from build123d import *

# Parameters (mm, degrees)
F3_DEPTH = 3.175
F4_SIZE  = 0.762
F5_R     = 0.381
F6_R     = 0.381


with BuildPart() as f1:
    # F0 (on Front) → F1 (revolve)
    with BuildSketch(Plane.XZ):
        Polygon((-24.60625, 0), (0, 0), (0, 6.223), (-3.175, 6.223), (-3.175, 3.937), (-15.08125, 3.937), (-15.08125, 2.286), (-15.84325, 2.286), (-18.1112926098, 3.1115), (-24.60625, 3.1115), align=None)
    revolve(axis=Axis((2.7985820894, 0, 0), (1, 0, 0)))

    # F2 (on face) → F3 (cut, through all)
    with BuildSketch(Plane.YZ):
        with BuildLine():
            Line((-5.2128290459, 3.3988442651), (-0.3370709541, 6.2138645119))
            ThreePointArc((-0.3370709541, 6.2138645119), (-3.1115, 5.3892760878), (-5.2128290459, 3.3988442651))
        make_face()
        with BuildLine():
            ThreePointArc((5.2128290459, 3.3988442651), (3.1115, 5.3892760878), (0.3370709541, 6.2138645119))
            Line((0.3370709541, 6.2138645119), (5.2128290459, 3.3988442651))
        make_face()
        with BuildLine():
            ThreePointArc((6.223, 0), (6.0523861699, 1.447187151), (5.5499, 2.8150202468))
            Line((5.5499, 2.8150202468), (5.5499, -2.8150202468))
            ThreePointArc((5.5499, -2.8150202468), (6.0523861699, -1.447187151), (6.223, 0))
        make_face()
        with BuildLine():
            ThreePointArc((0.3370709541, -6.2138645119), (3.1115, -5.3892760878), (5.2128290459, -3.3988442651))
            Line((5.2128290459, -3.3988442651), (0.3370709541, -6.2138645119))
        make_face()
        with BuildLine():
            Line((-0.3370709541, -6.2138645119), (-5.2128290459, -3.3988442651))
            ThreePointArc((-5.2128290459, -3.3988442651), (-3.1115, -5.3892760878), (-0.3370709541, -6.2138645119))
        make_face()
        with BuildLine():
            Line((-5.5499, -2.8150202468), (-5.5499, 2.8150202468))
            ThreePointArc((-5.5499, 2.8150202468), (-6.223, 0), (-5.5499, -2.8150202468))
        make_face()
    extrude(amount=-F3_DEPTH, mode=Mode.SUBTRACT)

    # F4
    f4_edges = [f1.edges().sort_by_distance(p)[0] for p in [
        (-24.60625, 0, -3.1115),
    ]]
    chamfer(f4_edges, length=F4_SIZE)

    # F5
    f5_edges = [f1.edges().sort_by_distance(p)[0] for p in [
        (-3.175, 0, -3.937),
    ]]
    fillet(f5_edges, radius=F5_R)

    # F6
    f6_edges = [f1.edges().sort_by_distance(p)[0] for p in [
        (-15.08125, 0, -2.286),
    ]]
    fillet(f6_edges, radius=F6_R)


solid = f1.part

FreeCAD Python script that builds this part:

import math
import FreeCAD as App
import Part
import Sketcher
Q = App.Units.Quantity


def edges_at(feature, points):
    """Names of the edges that pass closest to the given points."""
    edges = feature.Shape.Edges
    near = lambda p: min(range(len(edges)), key=lambda i: edges[i].distToShape(Part.Vertex(*p))[0])
    return sorted({f"Edge{near(p) + 1}" for p in points})


def add_polygon(sketch, points):
    """Adds a closed chain of lines whose ends are joined by coincident constraints."""
    first, n = sketch.GeometryCount, len(points)
    for a, b in zip(points, points[1:] + points[:1]):
        sketch.addGeometry(Part.LineSegment(App.Vector(*a, 0), App.Vector(*b, 0)), False)
    for i in range(n):
        sketch.addConstraint(Sketcher.Constraint("Coincident", first + i, 2, first + (i + 1) % n, 1))

doc = App.newDocument("Part")
body = doc.addObject("PartDesign::Body", "Body")

# Sketch on XZ plane
sketch1 = body.newObject("Sketcher::SketchObject", "Sketch")
sketch1.AttachmentSupport = (doc.getObject("XZ_Plane"), [""])
sketch1.MapMode = "FlatFace"
add_polygon(sketch1, [(-24.6, 0), (0, 0), (0, 6.2), (-3.2, 6.2), (-3.2, 3.9), (-15.1, 3.9), (-15.1, 2.3), (-15.8, 2.3), (-18.1, 3.1), (-24.6, 3.1)])  # lines 0-9
sketch1.addConstraint(Sketcher.Constraint("Horizontal", 0))
sketch1.addConstraint(Sketcher.Constraint("Vertical", 1))
sketch1.addConstraint(Sketcher.Constraint("Horizontal", 2))
sketch1.addConstraint(Sketcher.Constraint("Vertical", 3))
sketch1.addConstraint(Sketcher.Constraint("Horizontal", 4))
sketch1.addConstraint(Sketcher.Constraint("Vertical", 5))
sketch1.addConstraint(Sketcher.Constraint("Horizontal", 6))
sketch1.addConstraint(Sketcher.Constraint("Horizontal", 8))
sketch1.addConstraint(Sketcher.Constraint("Vertical", 9))
sketch1.addConstraint(Sketcher.Constraint("Coincident", 0, 2, -1, 1))
sketch1.addConstraint(Sketcher.Constraint("Angle", 7, Q("160 deg")))
sketch1.addConstraint(Sketcher.Constraint("DistanceX", 6, 2, 6, 1, Q("0.03 in")))
sketch1.addConstraint(Sketcher.Constraint("DistanceY", 3, 2, 3, 1, Q("0.09 in")))
sketch1.addConstraint(Sketcher.Constraint("DistanceX", 0, 1, 0, 2, Q("0.96875 in")))
sketch1.addConstraint(Sketcher.Constraint("DistanceX", 2, 2, 2, 1, Q("0.125 in")))
sketch1.addConstraint(Sketcher.Constraint("DistanceX", 4, 2, 4, 1, Q("0.46875 in")))
sketch1.addConstraint(Sketcher.Constraint("DistanceY", 1, 1, 1, 2, Q("0.245 in")))
sketch1.addConstraint(Sketcher.Constraint("DistanceY", 5, 2, 5, 1, Q("0.065 in")))
sketch1.addConstraint(Sketcher.Constraint("DistanceY", 9, 2, 9, 1, Q("0.1225 in")))
revolution = body.newObject("PartDesign::Revolution", "Revolution")
revolution.Profile = sketch1
revolution.ReferenceAxis = (sketch1, ["H_Axis"])
revolution.Angle = 360

# Sketch on YZ plane
sketch2 = body.newObject("Sketcher::SketchObject", "Sketch001")
sketch2.AttachmentSupport = (doc.getObject("YZ_Plane"), [""])
sketch2.MapMode = "FlatFace"
sketch2.addGeometry(Part.LineSegment(App.Vector(-5.2, 3.4, 0), App.Vector(-0.3, 6.2, 0)), False)
sketch2.addGeometry(Part.ArcOfCircle(Part.Circle(App.Vector(0, 0, 0), App.Vector(0, 0, 1), 6.2), math.radians(93), math.radians(147)), False)
sketch2.addGeometry(Part.ArcOfCircle(Part.Circle(App.Vector(0, 0, 0), App.Vector(0, 0, 1), 6.2), math.radians(33), math.radians(87)), False)
sketch2.addGeometry(Part.LineSegment(App.Vector(0.3, 6.2, 0), App.Vector(5.2, 3.4, 0)), False)
sketch2.addGeometry(Part.ArcOfCircle(Part.Circle(App.Vector(0, 0, 0), App.Vector(0, 0, 1), 6.2), math.radians(0), math.radians(27)), False)
sketch2.addGeometry(Part.LineSegment(App.Vector(5.5, 2.8, 0), App.Vector(5.5, -2.8, 0)), False)
sketch2.addGeometry(Part.ArcOfCircle(Part.Circle(App.Vector(0, 0, 0), App.Vector(0, 0, 1), 6.2), math.radians(-27), math.radians(0)), False)
sketch2.addGeometry(Part.ArcOfCircle(Part.Circle(App.Vector(0, 0, 0), App.Vector(0, 0, 1), 6.2), math.radians(-87), math.radians(-33)), False)
sketch2.addGeometry(Part.LineSegment(App.Vector(5.2, -3.4, 0), App.Vector(0.3, -6.2, 0)), False)
sketch2.addGeometry(Part.LineSegment(App.Vector(-0.3, -6.2, 0), App.Vector(-5.2, -3.4, 0)), False)
sketch2.addGeometry(Part.ArcOfCircle(Part.Circle(App.Vector(0, 0, 0), App.Vector(0, 0, 1), 6.2), math.radians(-147), math.radians(-93)), False)
sketch2.addGeometry(Part.LineSegment(App.Vector(-5.5, -2.8, 0), App.Vector(-5.5, 2.8, 0)), False)
sketch2.addGeometry(Part.ArcOfCircle(Part.Circle(App.Vector(0, 0, 0), App.Vector(0, 0, 1), 6.2), math.radians(153), math.radians(207)), False)
sketch2.addConstraint(Sketcher.Constraint("Coincident", 0, 1, 1, 2))
sketch2.addConstraint(Sketcher.Constraint("Coincident", 1, 1, 0, 2))
sketch2.addConstraint(Sketcher.Constraint("Coincident", 2, 1, 3, 2))
sketch2.addConstraint(Sketcher.Constraint("Coincident", 3, 1, 2, 2))
sketch2.addConstraint(Sketcher.Constraint("Coincident", 4, 2, 5, 1))
sketch2.addConstraint(Sketcher.Constraint("Coincident", 5, 2, 6, 1))
sketch2.addConstraint(Sketcher.Constraint("Tangent", 6, 2, 4, 1))
sketch2.addConstraint(Sketcher.Constraint("Coincident", 7, 1, 8, 2))
sketch2.addConstraint(Sketcher.Constraint("Coincident", 8, 1, 7, 2))
sketch2.addConstraint(Sketcher.Constraint("Coincident", 9, 1, 10, 2))
sketch2.addConstraint(Sketcher.Constraint("Coincident", 10, 1, 9, 2))
sketch2.addConstraint(Sketcher.Constraint("Coincident", 11, 1, 12, 2))
sketch2.addConstraint(Sketcher.Constraint("Coincident", 12, 1, 11, 2))
sketch2.addConstraint(Sketcher.Constraint("Vertical", 5))
sketch2.addConstraint(Sketcher.Constraint("Vertical", 11))
sketch2.addConstraint(Sketcher.Constraint("Coincident", 1, 3, -1, 1))
sketch2.addConstraint(Sketcher.Constraint("Coincident", 2, 3, -1, 1))
sketch2.addConstraint(Sketcher.Constraint("Coincident", 4, 3, -1, 1))
sketch2.addConstraint(Sketcher.Constraint("Coincident", 7, 3, -1, 1))
sketch2.addConstraint(Sketcher.Constraint("Coincident", 10, 3, -1, 1))
sketch2.addConstraint(Sketcher.Constraint("Coincident", 12, 3, -1, 1))
sketch2.addConstraint(Sketcher.Constraint("Equal", 1, 2))
sketch2.addConstraint(Sketcher.Constraint("Equal", 2, 4))
sketch2.addConstraint(Sketcher.Constraint("Equal", 4, 6))
sketch2.addConstraint(Sketcher.Constraint("Equal", 6, 7))
sketch2.addConstraint(Sketcher.Constraint("Equal", 7, 10))
sketch2.addConstraint(Sketcher.Constraint("Equal", 10, 12))
sketch2.addConstraint(Sketcher.Constraint("PointOnObject", 6, 2, -1))
sketch2.addConstraint(Sketcher.Constraint("Parallel", 0, 8))
sketch2.addConstraint(Sketcher.Constraint("Parallel", 3, 9))
sketch2.addConstraint(Sketcher.Constraint("Horizontal", 0, 1, 2, 1))
sketch2.addConstraint(Sketcher.Constraint("Horizontal", 1, 1, 3, 1))
sketch2.addConstraint(Sketcher.Constraint("Horizontal", 7, 1, 9, 1))
sketch2.addConstraint(Sketcher.Constraint("Horizontal", 5, 2, 11, 1))
sketch2.addConstraint(Sketcher.Constraint("Vertical", 3, 1, 7, 1))
sketch2.addConstraint(Sketcher.Constraint("Angle", 0, Q("30 deg")))
sketch2.addConstraint(Sketcher.Constraint("Radius", 1, Q("0.245 in")))
sketch2.addConstraint(Sketcher.Constraint("DistanceX", -1, 1, 4, 2, Q("0.2185 in")))
sketch2.addConstraint(Sketcher.Constraint("DistanceX", 1, 1, 2, 1, Q("0.2185 in")))
pocket1 = body.newObject("PartDesign::Pocket", "Pocket")
pocket1.Profile = sketch2
pocket1.Type = "ThroughAll"
doc.recompute()

chamfer = body.newObject("PartDesign::Chamfer", "Chamfer")
chamfer.Base = (pocket1, edges_at(pocket1, [(-24.606, 0, -3.111)]))
chamfer.Size = Q("0.03 in")
doc.recompute()

fillet = body.newObject("PartDesign::Fillet", "Fillet")
fillet.Base = (chamfer, edges_at(chamfer, [(-3.175, 0, -3.937)]))
fillet.Radius = Q("0.015 in")
doc.recompute()

fillet2 = body.newObject("PartDesign::Fillet", "Fillet001")
fillet2.Base = (fillet, edges_at(fillet, [(-15.081, 0, -2.286)]))
fillet2.Radius = Q("0.015 in")

doc.recompute()
